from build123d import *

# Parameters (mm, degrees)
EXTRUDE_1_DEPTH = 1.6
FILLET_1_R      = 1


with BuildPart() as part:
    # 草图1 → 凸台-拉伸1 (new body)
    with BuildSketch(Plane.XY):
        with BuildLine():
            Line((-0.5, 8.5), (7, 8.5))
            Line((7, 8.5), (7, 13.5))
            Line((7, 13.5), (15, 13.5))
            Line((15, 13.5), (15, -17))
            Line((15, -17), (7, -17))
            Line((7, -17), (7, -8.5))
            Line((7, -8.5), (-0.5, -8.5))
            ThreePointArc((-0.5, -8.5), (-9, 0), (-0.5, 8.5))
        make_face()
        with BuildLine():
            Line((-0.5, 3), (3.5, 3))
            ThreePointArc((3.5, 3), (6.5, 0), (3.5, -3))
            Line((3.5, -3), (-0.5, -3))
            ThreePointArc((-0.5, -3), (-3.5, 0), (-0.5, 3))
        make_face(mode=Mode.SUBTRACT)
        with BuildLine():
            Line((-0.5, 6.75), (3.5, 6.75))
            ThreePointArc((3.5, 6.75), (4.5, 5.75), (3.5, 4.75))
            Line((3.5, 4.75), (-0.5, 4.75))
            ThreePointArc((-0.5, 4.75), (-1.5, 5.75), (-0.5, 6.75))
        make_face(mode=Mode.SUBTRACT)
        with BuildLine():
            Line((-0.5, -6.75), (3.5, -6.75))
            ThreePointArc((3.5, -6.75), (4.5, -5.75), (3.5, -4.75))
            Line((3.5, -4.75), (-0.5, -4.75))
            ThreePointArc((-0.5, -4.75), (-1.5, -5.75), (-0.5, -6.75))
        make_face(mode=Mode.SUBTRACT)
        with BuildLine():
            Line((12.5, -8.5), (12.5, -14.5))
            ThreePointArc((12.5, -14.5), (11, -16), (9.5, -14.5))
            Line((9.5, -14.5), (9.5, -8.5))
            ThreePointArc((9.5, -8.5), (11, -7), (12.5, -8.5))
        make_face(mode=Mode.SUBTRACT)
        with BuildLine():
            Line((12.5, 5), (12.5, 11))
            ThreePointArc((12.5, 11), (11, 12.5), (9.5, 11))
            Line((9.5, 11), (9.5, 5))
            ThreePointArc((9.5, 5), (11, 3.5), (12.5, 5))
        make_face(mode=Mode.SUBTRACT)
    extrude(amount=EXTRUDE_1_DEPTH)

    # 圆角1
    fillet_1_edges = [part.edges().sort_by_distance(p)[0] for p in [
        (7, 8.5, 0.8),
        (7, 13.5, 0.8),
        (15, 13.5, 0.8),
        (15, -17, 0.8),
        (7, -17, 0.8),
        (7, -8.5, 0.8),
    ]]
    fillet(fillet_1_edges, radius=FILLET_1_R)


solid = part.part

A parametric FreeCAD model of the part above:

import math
import FreeCAD as App
import Part
import Sketcher
from FreeCAD import Vector


def edges_at(feature, points):
    """Names of the edges that pass closest to the given points."""
    edges = feature.Shape.Edges
    near = lambda p: min(range(len(edges)), key=lambda i: edges[i].distToShape(Part.Vertex(*p))[0])
    return sorted({f"Edge{near(p) + 1}" for p in points})

doc = App.newDocument("Part")
body = doc.addObject("PartDesign::Body", "Body")

sketch1 = doc.addObject("Sketcher::SketchObject", "Sketch")
body.addObject(sketch1)
sketch1.AttachmentSupport = (doc.XY_Plane, [""])
sketch1.MapMode = "FlatFace"
sketch1.addGeometry([
    Part.LineSegment(Vector(7, 8.5, 0), Vector(-0.5, 8.5, 0)),
    Part.ArcOfCircle(Part.Circle(Vector(-0.5, 0, 0), Vector(0, 0, 1), 8.5), math.radians(90), math.radians(270)),
    Part.LineSegment(Vector(-0.5, -8.5, 0), Vector(7, -8.5, 0)),
    Part.LineSegment(Vector(7, -8.5, 0), Vector(7, -17, 0)),
    Part.LineSegment(Vector(7, -17, 0), Vector(15, -17, 0)),
    Part.LineSegment(Vector(15, -17, 0), Vector(15, 13.5, 0)),
    Part.LineSegment(Vector(15, 13.5, 0), Vector(7, 13.5, 0)),
    Part.LineSegment(Vector(7, 13.5, 0), Vector(7, 8.5, 0)),
    Part.LineSegment(Vector(12.5, -8.5, 0), Vector(12.5, -14.5, 0)),
    Part.ArcOfCircle(Part.Circle(Vector(11, -14.5, 0), Vector(0, 0, 1), 1.5), math.radians(180), math.radians(360)),
    Part.LineSegment(Vector(9.5, -14.5, 0), Vector(9.5, -8.5, 0)),
    Part.ArcOfCircle(Part.Circle(Vector(11, -8.5, 0), Vector(0, 0, 1), 1.5), math.radians(0), math.radians(180)),
    Part.ArcOfCircle(Part.Circle(Vector(-0.5, -5.8, 0), Vector(0, 0, 1), 1), math.radians(90), math.radians(270)),
    Part.LineSegment(Vector(-0.5, -4.8, 0), Vector(3.5, -4.8, 0)),
    Part.ArcOfCircle(Part.Circle(Vector(3.5, -5.8, 0), Vector(0, 0, 1), 1), math.radians(-90), math.radians(90)),
    Part.LineSegment(Vector(3.5, -6.8, 0), Vector(-0.5, -6.8, 0)),
    Part.ArcOfCircle(Part.Circle(Vector(11, 5, 0), Vector(0, 0, 1), 1.5), math.radians(180), math.radians(360)),
    Part.LineSegment(Vector(9.5, 5, 0), Vector(9.5, 11, 0)),
    Part.ArcOfCircle(Part.Circle(Vector(11, 11, 0), Vector(0, 0, 1), 1.5), math.radians(0), math.radians(180)),
    Part.LineSegment(Vector(12.5, 11, 0), Vector(12.5, 5, 0)),
    Part.LineSegment(Vector(-0.5, 3, 0), Vector(3.5, 3, 0)),
    Part.ArcOfCircle(Part.Circle(Vector(3.5, 0, 0), Vector(0, 0, 1), 3), math.radians(-90), math.radians(90)),
    Part.LineSegment(Vector(3.5, -3, 0), Vector(-0.5, -3, 0)),
    Part.ArcOfCircle(Part.Circle(Vector(-0.5, 0, 0), Vector(0, 0, 1), 3), math.radians(90), math.radians(270)),
    Part.LineSegment(Vector(-0.5, 6.8, 0), Vector(3.5, 6.8, 0)),
    Part.ArcOfCircle(Part.Circle(Vector(3.5, 5.8, 0), Vector(0, 0, 1), 1), math.radians(-90), math.radians(90)),
    Part.LineSegment(Vector(3.5, 4.8, 0), Vector(-0.5, 4.8, 0)),
    Part.ArcOfCircle(Part.Circle(Vector(-0.5, 5.8, 0), Vector(0, 0, 1), 1), math.radians(90), math.radians(270)),
], False)
sketch1.addConstraint([
    Sketcher.Constraint("Tangent", 0, 2, 1, 1),
    Sketcher.Constraint("Tangent", 1, 2, 2, 1),
    Sketcher.Constraint("Coincident", 2, 2, 3, 1),
    Sketcher.Constraint("Coincident", 3, 2, 4, 1),
    Sketcher.Constraint("Coincident", 4, 2, 5, 1),
    Sketcher.Constraint("Coincident", 5, 2, 6, 1),
    Sketcher.Constraint("Coincident", 6, 2, 7, 1),
    Sketcher.Constraint("Coincident", 7, 2, 0, 1),
    Sketcher.Constraint("Tangent", 8, 2, 9, 2),
    Sketcher.Constraint("Tangent", 9, 1, 10, 1),
    Sketcher.Constraint("Tangent", 10, 2, 11, 2),
    Sketcher.Constraint("Tangent", 11, 1, 8, 1),
    Sketcher.Constraint("Tangent", 12, 1, 13, 1),
    Sketcher.Constraint("Tangent", 13, 2, 14, 2),
    Sketcher.Constraint("Tangent", 14, 1, 15, 1),
    Sketcher.Constraint("Tangent", 15, 2, 12, 2),
    Sketcher.Constraint("Tangent", 16, 1, 17, 1),
    Sketcher.Constraint("Tangent", 17, 2, 18, 2),
    Sketcher.Constraint("Tangent", 18, 1, 19, 1),
    Sketcher.Constraint("Tangent", 19, 2, 16, 2),
    Sketcher.Constraint("Tangent", 20, 2, 21, 2),
    Sketcher.Constraint("Tangent", 21, 1, 22, 1),
    Sketcher.Constraint("Tangent", 22, 2, 23, 2),
    Sketcher.Constraint("Tangent", 23, 1, 20, 1),
    Sketcher.Constraint("Tangent", 24, 2, 25, 2),
    Sketcher.Constraint("Tangent", 25, 1, 26, 1),
    Sketcher.Constraint("Tangent", 26, 2, 27, 2),
    Sketcher.Constraint("Tangent", 27, 1, 24, 1),
    Sketcher.Constraint("Horizontal", 0),
    Sketcher.Constraint("Horizontal", 2),
    Sketcher.Constraint("Vertical", 3),
    Sketcher.Constraint("Horizontal", 4),
    Sketcher.Constraint("Vertical", 5),
    Sketcher.Constraint("Horizontal", 6),
    Sketcher.Constraint("Vertical", 7),
    Sketcher.Constraint("Vertical", 8),
    Sketcher.Constraint("Vertical", 10),
    Sketcher.Constraint("Horizontal", 13),
    Sketcher.Constraint("Horizontal", 15),
    Sketcher.Constraint("Vertical", 17),
    Sketcher.Constraint("Vertical", 19),
    Sketcher.Constraint("Horizontal", 20),
    Sketcher.Constraint("Horizontal", 22),
    Sketcher.Constraint("Horizontal", 24),
    Sketcher.Constraint("Horizontal", 26),
    Sketcher.Constraint("Coincident", 23, 3, 1, 3),
    Sketcher.Constraint("Equal", 11, 16),
    Sketcher.Constraint("Equal", 14, 25),
    Sketcher.Constraint("Symmetric", 14, 3, 25, 3, -1),
    Sketcher.Constraint("Symmetric", 2, 2, 7, 2, -1),
    Sketcher.Constraint("Horizontal", 11, 3, 1, 2),
    Sketcher.Constraint("Vertical", 1, 3, 12, 3),
    Sketcher.Constraint("Vertical", 11, 3, 16, 3),
    Sketcher.Constraint("Vertical", 14, 3, 21, 3),
    Sketcher.Constraint("Vertical", 23, 3, 27, 3),
    Sketcher.Constraint("Equal", 10, 17),
    Sketcher.Constraint("Radius", 12, 1.0),
    Sketcher.Constraint("Radius", 21, 3.0),
    Sketcher.Constraint("Radius", 1, 8.5),
    Sketcher.Constraint("Radius", 9, 1.5),
    Sketcher.Constraint("DistanceX", 4, 1, 4, 2, 8.0),
    Sketcher.Constraint("DistanceX", 13, 1, 13, 2, 4.0),
    Sketcher.Constraint("DistanceY", 7, 2, 7, 1, 5.0),
    Sketcher.Constraint("DistanceY", 8, 2, 8, 1, 6.0),
    Sketcher.Constraint("DistanceX", 0, 2, 0, 1, 7.5),
    Sketcher.Constraint("DistanceY", 3, 2, 3, 1, 8.5),
    Sketcher.Constraint("DistanceX", -1, 1, 9, 3, 11.0),
    Sketcher.Constraint("DistanceY", -1, 1, 16, 3, 5.0),
    Sketcher.Constraint("DistanceX", -1, 1, 2, 2, 7.0),
    Sketcher.Constraint("DistanceY", 12, 3, 27, 3, 11.5),
])
pad1 = doc.addObject("PartDesign::Pad", "Pad")
body.addObject(pad1)
pad1.Profile = sketch1
pad1.Length = 1.6
doc.recompute()

fillet = doc.addObject("PartDesign::Fillet", "Fillet")
body.addObject(fillet)
fillet.Base = (pad1, edges_at(pad1, [
    (7, 8.5, 0.8),
    (7, 13.5, 0.8),
    (15, 13.5, 0.8),
    (15, -17, 0.8),
    (7, -17, 0.8),
    (7, -8.5, 0.8),
]))
fillet.Radius = 1

doc.recompute()
